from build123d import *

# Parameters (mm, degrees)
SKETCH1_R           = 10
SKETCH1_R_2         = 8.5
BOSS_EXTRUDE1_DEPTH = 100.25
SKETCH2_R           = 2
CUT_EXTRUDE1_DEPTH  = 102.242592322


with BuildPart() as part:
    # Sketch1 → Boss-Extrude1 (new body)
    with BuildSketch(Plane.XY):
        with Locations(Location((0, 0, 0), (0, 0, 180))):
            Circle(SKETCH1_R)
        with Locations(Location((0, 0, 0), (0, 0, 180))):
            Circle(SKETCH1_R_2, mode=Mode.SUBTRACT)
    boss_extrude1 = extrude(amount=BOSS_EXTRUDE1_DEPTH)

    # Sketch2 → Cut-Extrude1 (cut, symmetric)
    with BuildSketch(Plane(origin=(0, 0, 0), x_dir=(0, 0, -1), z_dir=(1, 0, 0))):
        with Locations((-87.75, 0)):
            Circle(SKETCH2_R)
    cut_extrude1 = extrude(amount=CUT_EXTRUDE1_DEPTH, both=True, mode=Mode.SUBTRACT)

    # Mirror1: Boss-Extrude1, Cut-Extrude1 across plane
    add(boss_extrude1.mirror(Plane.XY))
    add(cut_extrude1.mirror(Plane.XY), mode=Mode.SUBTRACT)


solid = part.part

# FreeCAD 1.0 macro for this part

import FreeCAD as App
import Part
import Sketcher

doc = App.newDocument("Part")
body = doc.addObject("PartDesign::Body", "Body")

sketch1 = body.newObject("Sketcher::SketchObject", "Sketch")
sketch1.AttachmentSupport = (doc.getObject("XY_Plane"), [""])
sketch1.MapMode = "FlatFace"
sketch1.addGeometry([
    Part.Circle(App.Vector(0, 0, 0), App.Vector(0, 0, 1), 10),
    Part.Circle(App.Vector(0, 0, 0), App.Vector(0, 0, 1), 8),
], False)
sketch1.addConstraint([
    Sketcher.Constraint("Coincident", 0, 3, -1, 1),
    Sketcher.Constraint("Coincident", 1, 3, -1, 1),
    Sketcher.Constraint("Diameter", 0, 20.0),
    Sketcher.Constraint("Diameter", 1, 17.0),
])
pad1 = body.newObject("PartDesign::Pad", "Pad")
pad1.Profile = sketch1
pad1.Length = 100.25

sketch2 = body.newObject("Sketcher::SketchObject", "Sketch001")
sketch2.AttachmentSupport = (doc.getObject("YZ_Plane"), [""])
sketch2.MapMode = "FlatFace"
sketch2.addGeometry(Part.Circle(App.Vector(0, 87.8, 0), App.Vector(0, 0, 1), 2), False)
sketch2.addConstraint([
    Sketcher.Constraint("PointOnObject", 0, 3, -2),
    Sketcher.Constraint("Diameter", 0, 4.0),
    Sketcher.Constraint("DistanceY", -1, 1, 0, 3, 87.75),
])
pocket1 = body.newObject("PartDesign::Pocket", "Pocket")
pocket1.Profile = sketch2
pocket1.Length = 204.485185
pocket1.Midplane = True
doc.recompute()

mirrored = body.newObject("PartDesign::Mirrored", "Mirrored")
mirrored.Originals = [pad1, pocket1]
mirrored.MirrorPlane = (doc.getObject("XY_Plane"), [""])
body.Tip = mirrored

doc.recompute()
